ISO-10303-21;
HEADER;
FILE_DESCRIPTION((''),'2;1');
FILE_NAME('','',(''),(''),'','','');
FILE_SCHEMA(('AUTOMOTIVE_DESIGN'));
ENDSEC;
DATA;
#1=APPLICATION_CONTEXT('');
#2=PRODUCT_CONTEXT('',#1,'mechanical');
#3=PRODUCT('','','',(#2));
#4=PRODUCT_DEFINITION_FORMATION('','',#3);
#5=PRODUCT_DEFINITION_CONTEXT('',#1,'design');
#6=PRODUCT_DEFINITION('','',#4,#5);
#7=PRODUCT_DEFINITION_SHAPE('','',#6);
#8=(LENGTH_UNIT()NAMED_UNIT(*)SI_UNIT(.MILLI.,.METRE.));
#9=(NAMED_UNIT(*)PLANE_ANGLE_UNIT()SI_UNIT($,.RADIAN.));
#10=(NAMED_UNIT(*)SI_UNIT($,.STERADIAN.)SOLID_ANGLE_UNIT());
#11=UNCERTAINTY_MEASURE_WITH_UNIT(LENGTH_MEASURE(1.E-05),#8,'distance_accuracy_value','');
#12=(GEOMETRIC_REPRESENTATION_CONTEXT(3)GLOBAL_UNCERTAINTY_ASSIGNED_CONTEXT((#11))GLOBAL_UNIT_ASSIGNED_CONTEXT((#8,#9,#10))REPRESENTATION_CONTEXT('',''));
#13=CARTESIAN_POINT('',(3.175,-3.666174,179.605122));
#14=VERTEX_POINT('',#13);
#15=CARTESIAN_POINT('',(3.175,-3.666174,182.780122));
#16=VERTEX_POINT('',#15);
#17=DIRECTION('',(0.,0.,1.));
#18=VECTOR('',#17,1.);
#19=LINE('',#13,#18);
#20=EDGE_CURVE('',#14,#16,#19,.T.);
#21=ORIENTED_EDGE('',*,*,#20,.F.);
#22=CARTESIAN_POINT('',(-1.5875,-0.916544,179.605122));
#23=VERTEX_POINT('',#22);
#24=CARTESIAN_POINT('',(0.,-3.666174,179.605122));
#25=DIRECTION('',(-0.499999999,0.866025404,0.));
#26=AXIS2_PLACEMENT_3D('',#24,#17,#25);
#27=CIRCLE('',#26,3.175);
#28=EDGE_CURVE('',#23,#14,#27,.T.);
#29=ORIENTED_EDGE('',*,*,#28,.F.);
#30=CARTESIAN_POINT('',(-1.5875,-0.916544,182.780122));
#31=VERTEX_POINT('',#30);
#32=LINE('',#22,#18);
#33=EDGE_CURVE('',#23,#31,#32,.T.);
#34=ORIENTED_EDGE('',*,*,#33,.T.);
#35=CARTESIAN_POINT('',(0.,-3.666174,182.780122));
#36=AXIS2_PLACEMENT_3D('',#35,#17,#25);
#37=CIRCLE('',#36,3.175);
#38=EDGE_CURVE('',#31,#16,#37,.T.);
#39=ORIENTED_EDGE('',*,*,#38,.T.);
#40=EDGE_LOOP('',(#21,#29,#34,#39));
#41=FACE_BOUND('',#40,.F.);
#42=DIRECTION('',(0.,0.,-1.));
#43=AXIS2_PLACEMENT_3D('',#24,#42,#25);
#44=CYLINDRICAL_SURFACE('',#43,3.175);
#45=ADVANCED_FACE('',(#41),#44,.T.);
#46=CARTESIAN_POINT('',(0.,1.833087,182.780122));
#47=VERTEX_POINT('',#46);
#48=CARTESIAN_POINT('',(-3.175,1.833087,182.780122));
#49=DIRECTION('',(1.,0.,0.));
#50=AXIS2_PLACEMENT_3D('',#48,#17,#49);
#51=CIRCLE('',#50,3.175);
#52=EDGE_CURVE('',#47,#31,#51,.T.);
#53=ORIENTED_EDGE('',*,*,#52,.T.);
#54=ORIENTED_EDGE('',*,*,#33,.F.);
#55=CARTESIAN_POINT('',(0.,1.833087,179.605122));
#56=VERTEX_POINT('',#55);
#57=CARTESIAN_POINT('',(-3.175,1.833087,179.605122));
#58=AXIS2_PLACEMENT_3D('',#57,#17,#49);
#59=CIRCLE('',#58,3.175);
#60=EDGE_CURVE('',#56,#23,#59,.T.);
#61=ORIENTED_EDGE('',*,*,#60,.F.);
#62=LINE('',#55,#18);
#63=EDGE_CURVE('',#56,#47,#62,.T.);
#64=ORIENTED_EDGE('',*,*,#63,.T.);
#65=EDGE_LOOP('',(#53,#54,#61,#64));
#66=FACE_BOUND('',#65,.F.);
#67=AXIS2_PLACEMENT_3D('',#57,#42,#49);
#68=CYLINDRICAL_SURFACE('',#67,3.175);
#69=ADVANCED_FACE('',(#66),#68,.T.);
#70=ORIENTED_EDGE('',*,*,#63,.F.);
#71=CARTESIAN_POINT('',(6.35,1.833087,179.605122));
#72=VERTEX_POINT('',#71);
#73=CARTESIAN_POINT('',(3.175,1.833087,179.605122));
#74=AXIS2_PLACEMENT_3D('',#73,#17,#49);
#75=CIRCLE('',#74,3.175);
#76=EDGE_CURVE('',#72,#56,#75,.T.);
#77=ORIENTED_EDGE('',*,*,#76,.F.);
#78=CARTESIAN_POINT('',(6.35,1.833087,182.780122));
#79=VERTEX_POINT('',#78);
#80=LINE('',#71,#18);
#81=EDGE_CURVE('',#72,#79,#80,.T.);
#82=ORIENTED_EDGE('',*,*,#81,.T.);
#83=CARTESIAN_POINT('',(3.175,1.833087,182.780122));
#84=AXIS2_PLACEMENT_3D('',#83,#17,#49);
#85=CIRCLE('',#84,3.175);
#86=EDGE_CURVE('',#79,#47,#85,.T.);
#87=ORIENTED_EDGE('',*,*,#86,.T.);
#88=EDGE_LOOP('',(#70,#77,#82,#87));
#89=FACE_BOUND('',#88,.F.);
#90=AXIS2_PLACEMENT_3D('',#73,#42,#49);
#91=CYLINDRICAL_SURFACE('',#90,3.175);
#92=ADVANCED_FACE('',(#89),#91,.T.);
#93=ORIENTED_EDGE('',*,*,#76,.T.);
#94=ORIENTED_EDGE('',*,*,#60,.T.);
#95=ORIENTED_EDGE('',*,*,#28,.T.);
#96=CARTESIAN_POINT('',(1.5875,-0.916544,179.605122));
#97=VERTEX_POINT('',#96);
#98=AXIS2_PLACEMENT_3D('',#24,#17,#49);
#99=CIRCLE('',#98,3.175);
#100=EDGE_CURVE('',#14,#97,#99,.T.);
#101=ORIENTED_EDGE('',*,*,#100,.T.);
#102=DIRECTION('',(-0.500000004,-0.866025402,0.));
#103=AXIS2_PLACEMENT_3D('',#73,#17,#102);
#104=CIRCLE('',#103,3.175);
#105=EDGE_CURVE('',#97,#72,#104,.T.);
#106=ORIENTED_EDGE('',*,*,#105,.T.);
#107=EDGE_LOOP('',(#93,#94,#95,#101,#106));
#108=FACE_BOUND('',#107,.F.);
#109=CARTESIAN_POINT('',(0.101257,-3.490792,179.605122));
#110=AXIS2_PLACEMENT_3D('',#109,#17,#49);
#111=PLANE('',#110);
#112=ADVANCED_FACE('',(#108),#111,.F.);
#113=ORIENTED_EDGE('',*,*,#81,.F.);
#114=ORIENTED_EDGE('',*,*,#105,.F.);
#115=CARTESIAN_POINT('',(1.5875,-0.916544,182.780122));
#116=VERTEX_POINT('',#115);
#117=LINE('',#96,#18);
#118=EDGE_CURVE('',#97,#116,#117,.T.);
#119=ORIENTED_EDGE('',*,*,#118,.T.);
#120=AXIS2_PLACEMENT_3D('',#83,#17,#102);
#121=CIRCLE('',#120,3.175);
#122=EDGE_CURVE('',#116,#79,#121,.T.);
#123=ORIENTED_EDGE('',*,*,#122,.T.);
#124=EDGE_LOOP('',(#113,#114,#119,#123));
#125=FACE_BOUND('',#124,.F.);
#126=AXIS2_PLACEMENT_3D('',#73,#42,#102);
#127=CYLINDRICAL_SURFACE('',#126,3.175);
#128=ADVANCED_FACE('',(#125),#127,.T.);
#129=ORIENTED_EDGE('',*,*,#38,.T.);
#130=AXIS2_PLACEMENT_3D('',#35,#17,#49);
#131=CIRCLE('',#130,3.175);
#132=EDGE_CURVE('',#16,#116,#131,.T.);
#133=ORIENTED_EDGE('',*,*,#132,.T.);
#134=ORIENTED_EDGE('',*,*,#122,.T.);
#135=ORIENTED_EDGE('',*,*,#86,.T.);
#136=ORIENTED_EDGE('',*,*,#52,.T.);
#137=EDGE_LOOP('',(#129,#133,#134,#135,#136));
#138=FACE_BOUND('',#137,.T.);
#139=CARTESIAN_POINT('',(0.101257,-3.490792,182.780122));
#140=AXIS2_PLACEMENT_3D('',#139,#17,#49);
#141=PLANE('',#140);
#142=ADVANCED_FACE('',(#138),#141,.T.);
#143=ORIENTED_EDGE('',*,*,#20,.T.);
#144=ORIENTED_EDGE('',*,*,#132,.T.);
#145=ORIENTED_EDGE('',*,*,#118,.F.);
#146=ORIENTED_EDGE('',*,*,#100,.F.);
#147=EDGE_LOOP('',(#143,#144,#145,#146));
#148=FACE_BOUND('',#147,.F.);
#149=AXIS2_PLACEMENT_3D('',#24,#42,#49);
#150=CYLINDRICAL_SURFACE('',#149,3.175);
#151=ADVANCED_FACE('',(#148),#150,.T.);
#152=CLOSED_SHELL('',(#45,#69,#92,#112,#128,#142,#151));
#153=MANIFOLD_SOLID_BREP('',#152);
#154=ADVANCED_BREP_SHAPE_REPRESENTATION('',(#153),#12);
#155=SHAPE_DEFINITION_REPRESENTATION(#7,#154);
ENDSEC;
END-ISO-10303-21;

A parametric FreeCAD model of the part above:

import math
import FreeCAD as App
import Part
import Sketcher

V = App.Vector
Q = App.Units.Quantity

doc = App.newDocument("Part")
body = doc.addObject("PartDesign::Body", "Body")

# Sketch on XY plane
sketch1 = body.newObject("Sketcher::SketchObject", "Sketch")
sketch1.AttachmentSupport = (doc.getObject("XY_Plane"), [""])
sketch1.MapMode = "FlatFace"
sketch1.AttachmentOffset = App.Placement(V(0, 0, 179.605122), App.Rotation())
sketch1.addGeometry(Part.ArcOfCircle(Part.Circle(V(0, -3.7, 0), V(0, 0, 1), 3.2), math.radians(120), math.radians(360)), False)
sketch1.addGeometry(Part.ArcOfCircle(Part.Circle(V(0, -3.7, 0), V(0, 0, 1), 3.2), math.radians(0), math.radians(60)), False)
sketch1.addGeometry(Part.ArcOfCircle(Part.Circle(V(3.2, 1.8, 0), V(0, 0, 1), 3.2), math.radians(-120), math.radians(0)), False)
sketch1.addGeometry(Part.ArcOfCircle(Part.Circle(V(3.2, 1.8, 0), V(0, 0, 1), 3.2), math.radians(0), math.radians(180)), False)
sketch1.addGeometry(Part.ArcOfCircle(Part.Circle(V(-3.2, 1.8, 0), V(0, 0, 1), 3.2), math.radians(0), math.radians(300)), False)
sketch1.addConstraint(Sketcher.Constraint("Tangent", 0, 2, 1, 1))
sketch1.addConstraint(Sketcher.Constraint("Tangent", 1, 2, 2, 1))
sketch1.addConstraint(Sketcher.Constraint("Tangent", 2, 2, 3, 1))
sketch1.addConstraint(Sketcher.Constraint("Tangent", 3, 2, 4, 1))
sketch1.addConstraint(Sketcher.Constraint("Tangent", 4, 2, 0, 1))
sketch1.addConstraint(Sketcher.Constraint("Equal", 0, 1))
sketch1.addConstraint(Sketcher.Constraint("Equal", 1, 2))
sketch1.addConstraint(Sketcher.Constraint("Equal", 2, 3))
sketch1.addConstraint(Sketcher.Constraint("Equal", 3, 4))
sketch1.addConstraint(Sketcher.Constraint("Symmetric", 2, 3, 4, 3, -2))
sketch1.addConstraint(Sketcher.Constraint("Horizontal", 1, 3, 0, 2))
sketch1.addConstraint(Sketcher.Constraint("Horizontal", 4, 3, 2, 2))
sketch1.addConstraint(Sketcher.Constraint("Radius", 0, Q("0.125 in")))
sketch1.addConstraint(Sketcher.Constraint("DistanceY", 0, 3, -1, 1, Q("3.666174 mm")))
pad1 = body.newObject("PartDesign::Pad", "Pad")
pad1.Profile = sketch1
pad1.Length = Q("0.125 in")

doc.recompute()
